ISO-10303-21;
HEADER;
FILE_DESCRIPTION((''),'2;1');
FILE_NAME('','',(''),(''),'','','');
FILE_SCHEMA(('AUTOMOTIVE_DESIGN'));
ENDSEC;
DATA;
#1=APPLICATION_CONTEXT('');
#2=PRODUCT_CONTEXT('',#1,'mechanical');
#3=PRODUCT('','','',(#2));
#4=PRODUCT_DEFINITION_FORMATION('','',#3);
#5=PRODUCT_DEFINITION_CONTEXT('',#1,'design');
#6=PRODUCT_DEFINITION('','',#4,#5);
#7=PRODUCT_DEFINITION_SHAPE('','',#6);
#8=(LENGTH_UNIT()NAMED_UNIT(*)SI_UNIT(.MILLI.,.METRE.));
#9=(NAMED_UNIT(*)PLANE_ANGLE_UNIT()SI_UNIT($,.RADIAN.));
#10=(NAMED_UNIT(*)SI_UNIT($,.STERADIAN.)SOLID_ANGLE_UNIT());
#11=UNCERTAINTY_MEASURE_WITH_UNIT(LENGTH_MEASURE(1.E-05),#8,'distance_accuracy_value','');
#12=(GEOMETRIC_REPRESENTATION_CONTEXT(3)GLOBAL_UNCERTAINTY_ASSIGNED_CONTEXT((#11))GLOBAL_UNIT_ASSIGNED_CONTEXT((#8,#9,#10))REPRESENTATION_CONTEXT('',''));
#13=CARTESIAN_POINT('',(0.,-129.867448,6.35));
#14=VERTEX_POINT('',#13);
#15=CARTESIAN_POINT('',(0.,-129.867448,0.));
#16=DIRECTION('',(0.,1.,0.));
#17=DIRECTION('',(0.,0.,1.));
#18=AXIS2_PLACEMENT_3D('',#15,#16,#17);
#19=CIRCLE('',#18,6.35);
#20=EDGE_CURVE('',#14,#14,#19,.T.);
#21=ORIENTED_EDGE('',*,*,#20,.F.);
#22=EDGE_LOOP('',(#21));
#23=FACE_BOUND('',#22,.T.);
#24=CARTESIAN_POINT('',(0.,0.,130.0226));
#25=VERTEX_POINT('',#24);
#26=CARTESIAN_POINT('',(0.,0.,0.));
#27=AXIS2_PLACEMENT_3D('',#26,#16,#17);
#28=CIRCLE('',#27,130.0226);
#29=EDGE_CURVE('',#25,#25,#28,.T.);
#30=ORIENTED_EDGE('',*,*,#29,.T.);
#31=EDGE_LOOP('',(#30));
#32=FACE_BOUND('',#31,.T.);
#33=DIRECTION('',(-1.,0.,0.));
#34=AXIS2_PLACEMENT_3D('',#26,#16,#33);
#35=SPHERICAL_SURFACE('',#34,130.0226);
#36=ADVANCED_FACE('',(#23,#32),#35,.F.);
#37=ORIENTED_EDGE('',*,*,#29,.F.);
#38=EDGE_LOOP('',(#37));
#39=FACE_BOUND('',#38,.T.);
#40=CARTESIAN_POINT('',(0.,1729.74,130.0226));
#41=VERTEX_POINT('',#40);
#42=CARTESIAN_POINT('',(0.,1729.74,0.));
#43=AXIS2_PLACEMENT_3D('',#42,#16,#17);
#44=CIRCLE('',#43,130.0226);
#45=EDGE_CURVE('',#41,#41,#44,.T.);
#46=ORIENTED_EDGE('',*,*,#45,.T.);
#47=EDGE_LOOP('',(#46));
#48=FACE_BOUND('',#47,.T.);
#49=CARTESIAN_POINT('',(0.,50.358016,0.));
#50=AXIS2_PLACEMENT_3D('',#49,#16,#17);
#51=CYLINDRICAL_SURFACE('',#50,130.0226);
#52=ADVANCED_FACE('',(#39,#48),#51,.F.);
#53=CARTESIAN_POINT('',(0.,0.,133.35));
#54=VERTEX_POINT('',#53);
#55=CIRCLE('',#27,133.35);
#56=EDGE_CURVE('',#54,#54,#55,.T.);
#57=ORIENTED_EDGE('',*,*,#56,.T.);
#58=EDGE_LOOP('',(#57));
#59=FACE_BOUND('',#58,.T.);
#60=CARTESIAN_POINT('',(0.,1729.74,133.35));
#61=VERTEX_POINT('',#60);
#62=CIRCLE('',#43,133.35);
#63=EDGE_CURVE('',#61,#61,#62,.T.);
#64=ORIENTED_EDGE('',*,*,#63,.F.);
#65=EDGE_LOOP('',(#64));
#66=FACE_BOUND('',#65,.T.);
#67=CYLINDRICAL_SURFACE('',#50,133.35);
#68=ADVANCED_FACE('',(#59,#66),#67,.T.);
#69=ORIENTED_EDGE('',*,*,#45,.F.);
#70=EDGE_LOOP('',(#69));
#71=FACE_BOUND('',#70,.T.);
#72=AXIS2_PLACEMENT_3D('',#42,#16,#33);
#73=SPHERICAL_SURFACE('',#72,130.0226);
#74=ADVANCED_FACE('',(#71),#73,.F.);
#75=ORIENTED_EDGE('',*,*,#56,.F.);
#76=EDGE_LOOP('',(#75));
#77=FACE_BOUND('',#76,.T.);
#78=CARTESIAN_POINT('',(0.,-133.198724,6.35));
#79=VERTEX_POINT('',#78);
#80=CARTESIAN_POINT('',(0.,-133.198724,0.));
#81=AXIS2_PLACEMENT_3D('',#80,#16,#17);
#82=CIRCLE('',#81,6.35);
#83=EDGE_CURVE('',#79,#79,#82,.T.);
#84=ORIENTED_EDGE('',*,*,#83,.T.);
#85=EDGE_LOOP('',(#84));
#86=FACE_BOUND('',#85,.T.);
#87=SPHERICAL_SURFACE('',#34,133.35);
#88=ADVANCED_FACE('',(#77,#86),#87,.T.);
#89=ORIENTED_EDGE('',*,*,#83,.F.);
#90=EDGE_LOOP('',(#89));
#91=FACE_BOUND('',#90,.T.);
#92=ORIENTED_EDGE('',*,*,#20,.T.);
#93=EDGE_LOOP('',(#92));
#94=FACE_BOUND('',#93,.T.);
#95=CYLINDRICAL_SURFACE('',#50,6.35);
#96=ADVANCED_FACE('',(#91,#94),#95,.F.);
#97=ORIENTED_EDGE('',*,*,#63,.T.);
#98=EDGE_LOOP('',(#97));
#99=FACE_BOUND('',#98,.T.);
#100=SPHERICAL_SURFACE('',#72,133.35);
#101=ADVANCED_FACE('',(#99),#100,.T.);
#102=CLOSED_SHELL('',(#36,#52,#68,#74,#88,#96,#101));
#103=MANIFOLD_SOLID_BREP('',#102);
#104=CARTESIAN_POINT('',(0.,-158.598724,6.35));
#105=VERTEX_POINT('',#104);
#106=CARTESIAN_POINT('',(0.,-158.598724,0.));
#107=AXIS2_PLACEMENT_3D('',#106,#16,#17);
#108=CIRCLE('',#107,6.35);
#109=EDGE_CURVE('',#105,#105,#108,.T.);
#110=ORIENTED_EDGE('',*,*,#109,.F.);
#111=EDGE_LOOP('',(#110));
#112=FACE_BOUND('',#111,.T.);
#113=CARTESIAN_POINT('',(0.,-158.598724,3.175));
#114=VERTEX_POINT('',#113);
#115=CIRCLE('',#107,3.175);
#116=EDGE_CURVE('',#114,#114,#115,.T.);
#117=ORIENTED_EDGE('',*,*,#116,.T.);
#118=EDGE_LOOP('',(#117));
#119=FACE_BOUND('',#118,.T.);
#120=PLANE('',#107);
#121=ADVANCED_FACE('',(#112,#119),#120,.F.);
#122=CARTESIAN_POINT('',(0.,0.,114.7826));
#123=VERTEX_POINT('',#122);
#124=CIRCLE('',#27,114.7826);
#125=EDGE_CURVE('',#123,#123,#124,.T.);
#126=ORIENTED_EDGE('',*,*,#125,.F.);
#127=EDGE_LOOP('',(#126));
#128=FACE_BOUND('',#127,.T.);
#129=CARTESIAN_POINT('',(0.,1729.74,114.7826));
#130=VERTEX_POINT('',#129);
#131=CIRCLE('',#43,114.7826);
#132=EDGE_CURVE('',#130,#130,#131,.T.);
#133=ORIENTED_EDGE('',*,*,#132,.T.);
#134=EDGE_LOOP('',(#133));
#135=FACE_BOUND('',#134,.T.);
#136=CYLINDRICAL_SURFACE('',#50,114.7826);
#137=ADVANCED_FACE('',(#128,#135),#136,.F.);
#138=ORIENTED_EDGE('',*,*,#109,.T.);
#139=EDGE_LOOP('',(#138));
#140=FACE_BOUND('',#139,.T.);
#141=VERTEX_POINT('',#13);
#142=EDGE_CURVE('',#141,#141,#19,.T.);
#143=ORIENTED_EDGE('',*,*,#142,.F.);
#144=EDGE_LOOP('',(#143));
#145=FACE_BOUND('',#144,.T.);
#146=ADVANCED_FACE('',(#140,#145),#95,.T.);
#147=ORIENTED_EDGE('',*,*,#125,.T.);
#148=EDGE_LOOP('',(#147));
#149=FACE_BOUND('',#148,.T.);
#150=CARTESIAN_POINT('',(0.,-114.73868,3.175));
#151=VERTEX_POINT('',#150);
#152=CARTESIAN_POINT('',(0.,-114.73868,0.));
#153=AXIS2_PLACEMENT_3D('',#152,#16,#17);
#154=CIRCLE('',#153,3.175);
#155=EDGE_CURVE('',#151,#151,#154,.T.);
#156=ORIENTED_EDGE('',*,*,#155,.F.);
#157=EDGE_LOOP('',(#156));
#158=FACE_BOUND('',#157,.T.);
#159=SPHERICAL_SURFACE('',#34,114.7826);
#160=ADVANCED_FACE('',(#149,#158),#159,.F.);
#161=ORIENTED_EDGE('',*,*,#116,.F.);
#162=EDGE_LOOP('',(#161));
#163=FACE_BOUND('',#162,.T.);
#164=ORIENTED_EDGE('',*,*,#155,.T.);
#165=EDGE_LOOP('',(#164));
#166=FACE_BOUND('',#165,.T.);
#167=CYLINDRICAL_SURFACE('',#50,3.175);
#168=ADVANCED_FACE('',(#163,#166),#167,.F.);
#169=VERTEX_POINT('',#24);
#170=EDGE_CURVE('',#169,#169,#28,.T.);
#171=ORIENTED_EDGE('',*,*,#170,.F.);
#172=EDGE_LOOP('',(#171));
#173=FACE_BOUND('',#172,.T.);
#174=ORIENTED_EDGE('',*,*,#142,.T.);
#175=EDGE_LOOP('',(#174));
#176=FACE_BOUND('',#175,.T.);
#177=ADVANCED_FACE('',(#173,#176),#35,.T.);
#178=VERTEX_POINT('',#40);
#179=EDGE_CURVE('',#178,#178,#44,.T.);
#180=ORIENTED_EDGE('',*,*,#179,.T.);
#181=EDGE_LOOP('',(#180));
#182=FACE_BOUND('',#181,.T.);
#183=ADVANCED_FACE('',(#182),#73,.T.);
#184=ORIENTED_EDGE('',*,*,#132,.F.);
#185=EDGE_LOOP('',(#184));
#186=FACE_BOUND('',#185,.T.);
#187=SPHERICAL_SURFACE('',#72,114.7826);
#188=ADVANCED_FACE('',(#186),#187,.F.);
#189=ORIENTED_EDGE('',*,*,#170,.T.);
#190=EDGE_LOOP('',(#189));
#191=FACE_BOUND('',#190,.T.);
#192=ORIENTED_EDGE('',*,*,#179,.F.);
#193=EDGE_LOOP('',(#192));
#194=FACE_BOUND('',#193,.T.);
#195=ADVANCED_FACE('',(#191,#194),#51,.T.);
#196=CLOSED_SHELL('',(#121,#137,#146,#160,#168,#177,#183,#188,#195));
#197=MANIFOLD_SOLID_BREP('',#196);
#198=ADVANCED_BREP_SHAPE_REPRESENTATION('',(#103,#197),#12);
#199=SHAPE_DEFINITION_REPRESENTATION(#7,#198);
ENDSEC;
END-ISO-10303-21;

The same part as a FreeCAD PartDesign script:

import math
import FreeCAD as App
import Part
import Sketcher
from FreeCAD import Vector
Q = App.Units.Quantity

doc = App.newDocument("Part")
params = doc.addObject("Spreadsheet::Sheet", "Params")
for row, (alias, value) in enumerate([
    ("sketch1_height", "68.1 in"),
    ("sketch1_height2", "0.6 in"),
    ("sketch1_radius", "4.519 in"),
    ("sketch1_width", "0.125 in"),
    ("revolution_angle", "360 deg"),
    ("sketch2_radius", "5.25 in"),
    ("sketch2_height", "68.1 in"),
    ("sketch2_radius2", "5.119 in"),
    ("revolution2_angle", "360 deg"),
], start=1):
    params.set(f"A{row}", alias)
    params.set(f"B{row}", "=" + value)
    params.setAlias(f"B{row}", alias)

body = doc.addObject("PartDesign::Body", "Body")

sketch1 = body.newObject("Sketcher::SketchObject", "Sketch")
sketch1.AttachmentSupport = (doc.getObject("XY_Plane"), [""])
sketch1.MapMode = "FlatFace"
sketch1.addGeometry([
    Part.LineSegment(Vector(-114.7826, 0, 0), Vector(-114.7826, 1729.74, 0)),
    Part.ArcOfCircle(Part.Circle(Vector(0, 1729.74, 0), Vector(0, 0, 1), 114.7826), math.radians(90), math.radians(180)),
    Part.LineSegment(Vector(0, 1844.5226, 0), Vector(0, 1859.7626, 0)),
    Part.ArcOfCircle(Part.Circle(Vector(0, 1729.74, 0), Vector(0, 0, 1), 130.0226), math.radians(90), math.radians(180)),
    Part.LineSegment(Vector(-130.0226, 1729.74, 0), Vector(-130.0226, 0, 0)),
    Part.ArcOfCircle(Part.Circle(Vector(0, 0, 0), Vector(0, 0, 1), 130.0226), math.radians(-180), math.radians(-92.799306)),
    Part.LineSegment(Vector(-6.35, -129.867448, 0), Vector(-6.35, -158.598724, 0)),
    Part.LineSegment(Vector(-6.35, -158.598724, 0), Vector(-3.175, -158.598724, 0)),
    Part.LineSegment(Vector(-3.175, -158.598724, 0), Vector(-3.175, -114.73868, 0)),
    Part.ArcOfCircle(Part.Circle(Vector(0, 0, 0), Vector(0, 0, 1), 114.7826), math.radians(180), math.radians(268.41494)),
], False)
sketch1.addConstraint([
    Sketcher.Constraint("Tangent", 0, 2, 1, 2),
    Sketcher.Constraint("Coincident", 1, 1, 2, 1),
    Sketcher.Constraint("Coincident", 2, 2, 3, 1),
    Sketcher.Constraint("Tangent", 3, 2, 4, 1),
    Sketcher.Constraint("Tangent", 4, 2, 5, 1),
    Sketcher.Constraint("Coincident", 5, 2, 6, 1),
    Sketcher.Constraint("Coincident", 6, 2, 7, 1),
    Sketcher.Constraint("Coincident", 7, 2, 8, 1),
    Sketcher.Constraint("Coincident", 8, 2, 9, 2),
    Sketcher.Constraint("Tangent", 9, 1, 0, 1),
    Sketcher.Constraint("Vertical", 0),
    Sketcher.Constraint("Vertical", 2),
    Sketcher.Constraint("Vertical", 4),
    Sketcher.Constraint("Vertical", 6),
    Sketcher.Constraint("Horizontal", 7),
    Sketcher.Constraint("Vertical", 8),
    Sketcher.Constraint("Coincident", 5, 3, -1, 1),
    Sketcher.Constraint("Coincident", 9, 3, -1, 1),
    Sketcher.Constraint("Coincident", 3, 3, 1, 3),
    Sketcher.Constraint("Equal", 3, 5),
    Sketcher.Constraint("PointOnObject", 1, 1, -2),
    Sketcher.Constraint("DistanceY", 0, 1, 0, 2, Q("68.1 in")),
    Sketcher.Constraint("DistanceY", 2, 1, 2, 2, Q("0.6 in")),
    Sketcher.Constraint("Radius", 1, Q("4.519 in")),
    Sketcher.Constraint("DistanceX", 7, 1, 7, 2, Q("0.125 in")),
    Sketcher.Constraint("DistanceX", 5, 2, -1, 1, Q("0.25 in")),
    Sketcher.Constraint("DistanceY", 6, 2, 6, 1, 28.731276),
])
sketch1.setExpression("Constraints[21]", "Params.sketch1_height")
sketch1.setExpression("Constraints[22]", "Params.sketch1_height2")
sketch1.setExpression("Constraints[23]", "Params.sketch1_radius")
sketch1.setExpression("Constraints[24]", "Params.sketch1_width")
revolution = body.newObject("PartDesign::Revolution", "Revolution")
revolution.Profile = sketch1
revolution.ReferenceAxis = (sketch1, ["V_Axis"])
revolution.setExpression("Angle", "Params.revolution_angle")
body2 = doc.addObject("PartDesign::Body", "Body001")

sketch2 = body2.newObject("Sketcher::SketchObject", "Sketch001")
sketch2.AttachmentSupport = (doc.getObject("XY_Plane001"), [""])
sketch2.MapMode = "FlatFace"
sketch2.addGeometry([
    Part.ArcOfCircle(Part.Circle(Vector(0, 1729.74, 0), Vector(0, 0, 1), 130.0226), math.radians(90), math.radians(180)),
    Part.LineSegment(Vector(0, 1859.7626, 0), Vector(0, 1863.09, 0)),
    Part.ArcOfCircle(Part.Circle(Vector(0, 1729.74, 0), Vector(0, 0, 1), 133.35), math.radians(90), math.radians(180)),
    Part.LineSegment(Vector(-133.35, 1729.74, 0), Vector(-133.35, 0, 0)),
    Part.ArcOfCircle(Part.Circle(Vector(0, 0, 0), Vector(0, 0, 1), 133.35), math.radians(-180), math.radians(-92.729403)),
    Part.LineSegment(Vector(-6.35, -133.198724, 0), Vector(-6.35, -129.867448, 0)),
    Part.ArcOfCircle(Part.Circle(Vector(0, 0, 0), Vector(0, 0, 1), 130.0226), math.radians(-180), math.radians(-92.799306)),
    Part.LineSegment(Vector(-130.0226, 0, 0), Vector(-130.0226, 1729.74, 0)),
], False)
sketch2.addConstraint([
    Sketcher.Constraint("Coincident", 0, 1, 1, 1),
    Sketcher.Constraint("Coincident", 1, 2, 2, 1),
    Sketcher.Constraint("Tangent", 2, 2, 3, 1),
    Sketcher.Constraint("Tangent", 3, 2, 4, 1),
    Sketcher.Constraint("Coincident", 4, 2, 5, 1),
    Sketcher.Constraint("Coincident", 5, 2, 6, 2),
    Sketcher.Constraint("Tangent", 6, 1, 7, 1),
    Sketcher.Constraint("Tangent", 7, 2, 0, 2),
    Sketcher.Constraint("Vertical", 1),
    Sketcher.Constraint("Vertical", 3),
    Sketcher.Constraint("Vertical", 5),
    Sketcher.Constraint("Vertical", 7),
    Sketcher.Constraint("Coincident", 4, 3, -1, 1),
    Sketcher.Constraint("Coincident", 6, 3, -1, 1),
    Sketcher.Constraint("Coincident", 2, 3, 0, 3),
    Sketcher.Constraint("Equal", 2, 4),
    Sketcher.Constraint("PointOnObject", 0, 1, -2),
    Sketcher.Constraint("Radius", 2, Q("5.25 in")),
    Sketcher.Constraint("DistanceY", 3, 2, 3, 1, Q("68.1 in")),
    Sketcher.Constraint("Radius", 0, Q("5.119 in")),
    Sketcher.Constraint("DistanceX", 3, 2, 4, 2, Q("5 in")),
])
sketch2.setExpression("Constraints[17]", "Params.sketch2_radius")
sketch2.setExpression("Constraints[18]", "Params.sketch2_height")
sketch2.setExpression("Constraints[19]", "Params.sketch2_radius2")
revolution2 = body2.newObject("PartDesign::Revolution", "Revolution001")
revolution2.Profile = sketch2
revolution2.ReferenceAxis = (sketch2, ["V_Axis"])
revolution2.setExpression("Angle", "Params.revolution2_angle")

doc.recompute()
